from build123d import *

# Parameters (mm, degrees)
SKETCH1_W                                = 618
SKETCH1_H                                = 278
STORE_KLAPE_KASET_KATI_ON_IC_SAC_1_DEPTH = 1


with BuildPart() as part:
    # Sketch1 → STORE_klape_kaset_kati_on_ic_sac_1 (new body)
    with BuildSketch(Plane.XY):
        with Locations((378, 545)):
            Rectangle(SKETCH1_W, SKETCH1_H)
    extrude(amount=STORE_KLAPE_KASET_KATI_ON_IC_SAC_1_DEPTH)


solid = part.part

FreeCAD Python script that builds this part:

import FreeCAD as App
import Part
import Sketcher
from FreeCAD import Vector


def add_polygon(sketch, points):
    """Adds a closed chain of lines whose ends are joined by coincident constraints."""
    first, n = sketch.GeometryCount, len(points)
    for a, b in zip(points, points[1:] + points[:1]):
        sketch.addGeometry(Part.LineSegment(App.Vector(*a, 0), App.Vector(*b, 0)), False)
    for i in range(n):
        sketch.addConstraint(Sketcher.Constraint("Coincident", first + i, 2, first + (i + 1) % n, 1))

doc = App.newDocument("Part")
body = doc.addObject("PartDesign::Body", "Body")

# Sketch on XY plane
sketch1 = doc.addObject("Sketcher::SketchObject", "Sketch")
body.addObject(sketch1)
sketch1.AttachmentSupport = (doc.XY_Plane, [""])
sketch1.MapMode = "FlatFace"
add_polygon(sketch1, [(69, 684), (69, 406), (687, 406), (687, 684)])  # lines 0-3
sketch1.addConstraint(Sketcher.Constraint("Vertical", 0))
sketch1.addConstraint(Sketcher.Constraint("Horizontal", 1))
sketch1.addConstraint(Sketcher.Constraint("Vertical", 2))
sketch1.addConstraint(Sketcher.Constraint("Horizontal", 3))
sketch1.addConstraint(Sketcher.Constraint("DistanceX", 1, 1, 1, 2, 618.0))
sketch1.addConstraint(Sketcher.Constraint("DistanceY", 0, 2, 0, 1, 278.0))
sketch1.addConstraint(Sketcher.Constraint("DistanceX", -1, 1, 0, 2, 69.0))
sketch1.addConstraint(Sketcher.Constraint("DistanceY", -1, 1, 0, 2, 406.0))
pad1 = doc.addObject("PartDesign::Pad", "Pad")
body.addObject(pad1)
pad1.Profile = sketch1
pad1.Length = 1

doc.recompute()
